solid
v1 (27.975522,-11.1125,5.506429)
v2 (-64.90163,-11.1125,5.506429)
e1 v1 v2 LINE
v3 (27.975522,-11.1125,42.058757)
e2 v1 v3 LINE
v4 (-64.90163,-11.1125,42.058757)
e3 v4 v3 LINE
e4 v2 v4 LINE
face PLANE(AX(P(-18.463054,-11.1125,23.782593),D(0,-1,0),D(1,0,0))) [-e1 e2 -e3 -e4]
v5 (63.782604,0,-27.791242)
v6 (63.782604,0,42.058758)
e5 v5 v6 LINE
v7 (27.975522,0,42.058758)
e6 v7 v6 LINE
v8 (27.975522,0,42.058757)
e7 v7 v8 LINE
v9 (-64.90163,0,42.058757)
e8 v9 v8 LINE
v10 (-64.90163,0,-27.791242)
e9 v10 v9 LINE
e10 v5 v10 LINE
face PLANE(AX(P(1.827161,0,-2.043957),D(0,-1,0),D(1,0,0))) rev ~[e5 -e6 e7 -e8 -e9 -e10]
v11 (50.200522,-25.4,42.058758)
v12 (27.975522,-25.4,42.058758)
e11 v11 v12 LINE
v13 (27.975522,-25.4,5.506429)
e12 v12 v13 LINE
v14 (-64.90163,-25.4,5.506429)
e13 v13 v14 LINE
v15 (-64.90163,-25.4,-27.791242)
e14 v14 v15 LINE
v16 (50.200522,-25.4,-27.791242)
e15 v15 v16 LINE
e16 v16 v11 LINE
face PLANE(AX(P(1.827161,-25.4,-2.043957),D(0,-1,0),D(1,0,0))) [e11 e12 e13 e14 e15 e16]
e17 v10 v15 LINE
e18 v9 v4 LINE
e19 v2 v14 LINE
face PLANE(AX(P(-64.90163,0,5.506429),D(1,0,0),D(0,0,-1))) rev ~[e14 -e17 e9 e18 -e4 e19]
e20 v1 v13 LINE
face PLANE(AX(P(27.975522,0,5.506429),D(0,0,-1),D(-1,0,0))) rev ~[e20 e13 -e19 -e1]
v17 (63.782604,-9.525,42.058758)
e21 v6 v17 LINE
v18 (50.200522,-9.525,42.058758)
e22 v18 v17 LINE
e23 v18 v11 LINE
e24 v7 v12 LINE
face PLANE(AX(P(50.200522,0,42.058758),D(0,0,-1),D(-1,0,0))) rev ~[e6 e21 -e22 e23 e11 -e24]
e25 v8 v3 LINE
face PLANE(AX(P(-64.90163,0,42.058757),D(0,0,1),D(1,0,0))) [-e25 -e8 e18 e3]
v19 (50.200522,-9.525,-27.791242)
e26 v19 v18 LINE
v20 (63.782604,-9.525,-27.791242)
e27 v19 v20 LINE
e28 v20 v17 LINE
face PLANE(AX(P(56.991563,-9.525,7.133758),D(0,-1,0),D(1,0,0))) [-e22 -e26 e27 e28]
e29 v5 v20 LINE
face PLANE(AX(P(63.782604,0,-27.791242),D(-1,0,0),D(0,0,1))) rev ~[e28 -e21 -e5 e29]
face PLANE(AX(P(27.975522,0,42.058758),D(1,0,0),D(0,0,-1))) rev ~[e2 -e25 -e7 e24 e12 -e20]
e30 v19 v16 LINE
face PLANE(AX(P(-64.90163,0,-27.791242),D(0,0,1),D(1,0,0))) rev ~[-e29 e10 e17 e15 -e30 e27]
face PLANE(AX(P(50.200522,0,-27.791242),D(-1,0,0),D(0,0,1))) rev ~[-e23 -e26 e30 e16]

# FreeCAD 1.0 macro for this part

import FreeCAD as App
import Part
import Sketcher
from FreeCAD import Vector
Q = App.Units.Quantity


def add_polygon(sketch, points):
    """Adds a closed chain of lines whose ends are joined by coincident constraints."""
    first, n = sketch.GeometryCount, len(points)
    for a, b in zip(points, points[1:] + points[:1]):
        sketch.addGeometry(Part.LineSegment(App.Vector(*a, 0), App.Vector(*b, 0)), False)
    for i in range(n):
        sketch.addConstraint(Sketcher.Constraint("Coincident", first + i, 2, first + (i + 1) % n, 1))

doc = App.newDocument("Part")
body = doc.addObject("PartDesign::Body", "Body")

# Sketch on XZ plane
sketch1 = body.newObject("Sketcher::SketchObject", "Sketch")
sketch1.AttachmentSupport = (doc.getObject("XZ_Plane"), [""])
sketch1.MapMode = "FlatFace"
add_polygon(sketch1, [(28, 6), (-65, 6), (-65, -28), (50, -28), (50, 42), (28, 42)])  # lines 0-5
sketch1.addConstraint(Sketcher.Constraint("Horizontal", 0))
sketch1.addConstraint(Sketcher.Constraint("Vertical", 1))
sketch1.addConstraint(Sketcher.Constraint("Horizontal", 2))
sketch1.addConstraint(Sketcher.Constraint("Vertical", 3))
sketch1.addConstraint(Sketcher.Constraint("Horizontal", 4))
sketch1.addConstraint(Sketcher.Constraint("Vertical", 5))
sketch1.addConstraint(Sketcher.Constraint("DistanceY", 3, 1, 3, 2, Q("2.75 in")))
sketch1.addConstraint(Sketcher.Constraint("DistanceX", 4, 2, 4, 1, Q("0.875 in")))
sketch1.addConstraint(Sketcher.Constraint("DistanceX", 0, 2, 0, 1, Q("92.877152 mm")))
sketch1.addConstraint(Sketcher.Constraint("DistanceY", 1, 2, 1, 1, Q("33.297671 mm")))
sketch1.addConstraint(Sketcher.Constraint("DistanceX", 0, 2, -1, 1, Q("64.90163 mm")))
sketch1.addConstraint(Sketcher.Constraint("DistanceY", -1, 1, 0, 2, Q("5.506429 mm")))
pad1 = body.newObject("PartDesign::Pad", "Pad")
pad1.Profile = sketch1
pad1.Length = Q("1 in")

# Sketch on XZ plane
sketch2 = body.newObject("Sketcher::SketchObject", "Sketch001")
sketch2.AttachmentSupport = (doc.getObject("XZ_Plane"), [""])
sketch2.MapMode = "FlatFace"
add_polygon(sketch2, [(-65, 42), (-65, 6), (28, 6), (28, 42)])  # lines 0-3
sketch2.addConstraint(Sketcher.Constraint("Vertical", 0))
sketch2.addConstraint(Sketcher.Constraint("Horizontal", 1))
sketch2.addConstraint(Sketcher.Constraint("Vertical", 2))
sketch2.addConstraint(Sketcher.Constraint("Horizontal", 3))
sketch2.addConstraint(Sketcher.Constraint("DistanceX", 1, 1, 1, 2, Q("92.877152 mm")))
sketch2.addConstraint(Sketcher.Constraint("DistanceY", 0, 2, 0, 1, Q("36.552329 mm")))
sketch2.addConstraint(Sketcher.Constraint("DistanceX", 0, 2, -1, 1, Q("64.90163 mm")))
sketch2.addConstraint(Sketcher.Constraint("DistanceY", -1, 1, 0, 2, Q("5.506429 mm")))
pad2 = body.newObject("PartDesign::Pad", "Pad001")
pad2.Profile = sketch2
pad2.Length = Q("0.4375 in")

# Sketch on XZ plane
sketch3 = body.newObject("Sketcher::SketchObject", "Sketch002")
sketch3.AttachmentSupport = (doc.getObject("XZ_Plane"), [""])
sketch3.MapMode = "FlatFace"
add_polygon(sketch3, [(50, 42), (50, -28), (64, -28), (64, 42)])  # lines 0-3
sketch3.addConstraint(Sketcher.Constraint("Vertical", 0))
sketch3.addConstraint(Sketcher.Constraint("Horizontal", 1))
sketch3.addConstraint(Sketcher.Constraint("Vertical", 2))
sketch3.addConstraint(Sketcher.Constraint("Horizontal", 3))
sketch3.addConstraint(Sketcher.Constraint("DistanceY", 0, 2, 0, 1, Q("2.75 in")))
sketch3.addConstraint(Sketcher.Constraint("DistanceX", 1, 1, 1, 2, Q("13.582083 mm")))
sketch3.addConstraint(Sketcher.Constraint("DistanceX", -1, 1, 0, 2, Q("50.200522 mm")))
sketch3.addConstraint(Sketcher.Constraint("DistanceY", 0, 2, -1, 1, Q("27.791242 mm")))
pad3 = body.newObject("PartDesign::Pad", "Pad002")
pad3.Profile = sketch3
pad3.Length = Q("0.375 in")

doc.recompute()
